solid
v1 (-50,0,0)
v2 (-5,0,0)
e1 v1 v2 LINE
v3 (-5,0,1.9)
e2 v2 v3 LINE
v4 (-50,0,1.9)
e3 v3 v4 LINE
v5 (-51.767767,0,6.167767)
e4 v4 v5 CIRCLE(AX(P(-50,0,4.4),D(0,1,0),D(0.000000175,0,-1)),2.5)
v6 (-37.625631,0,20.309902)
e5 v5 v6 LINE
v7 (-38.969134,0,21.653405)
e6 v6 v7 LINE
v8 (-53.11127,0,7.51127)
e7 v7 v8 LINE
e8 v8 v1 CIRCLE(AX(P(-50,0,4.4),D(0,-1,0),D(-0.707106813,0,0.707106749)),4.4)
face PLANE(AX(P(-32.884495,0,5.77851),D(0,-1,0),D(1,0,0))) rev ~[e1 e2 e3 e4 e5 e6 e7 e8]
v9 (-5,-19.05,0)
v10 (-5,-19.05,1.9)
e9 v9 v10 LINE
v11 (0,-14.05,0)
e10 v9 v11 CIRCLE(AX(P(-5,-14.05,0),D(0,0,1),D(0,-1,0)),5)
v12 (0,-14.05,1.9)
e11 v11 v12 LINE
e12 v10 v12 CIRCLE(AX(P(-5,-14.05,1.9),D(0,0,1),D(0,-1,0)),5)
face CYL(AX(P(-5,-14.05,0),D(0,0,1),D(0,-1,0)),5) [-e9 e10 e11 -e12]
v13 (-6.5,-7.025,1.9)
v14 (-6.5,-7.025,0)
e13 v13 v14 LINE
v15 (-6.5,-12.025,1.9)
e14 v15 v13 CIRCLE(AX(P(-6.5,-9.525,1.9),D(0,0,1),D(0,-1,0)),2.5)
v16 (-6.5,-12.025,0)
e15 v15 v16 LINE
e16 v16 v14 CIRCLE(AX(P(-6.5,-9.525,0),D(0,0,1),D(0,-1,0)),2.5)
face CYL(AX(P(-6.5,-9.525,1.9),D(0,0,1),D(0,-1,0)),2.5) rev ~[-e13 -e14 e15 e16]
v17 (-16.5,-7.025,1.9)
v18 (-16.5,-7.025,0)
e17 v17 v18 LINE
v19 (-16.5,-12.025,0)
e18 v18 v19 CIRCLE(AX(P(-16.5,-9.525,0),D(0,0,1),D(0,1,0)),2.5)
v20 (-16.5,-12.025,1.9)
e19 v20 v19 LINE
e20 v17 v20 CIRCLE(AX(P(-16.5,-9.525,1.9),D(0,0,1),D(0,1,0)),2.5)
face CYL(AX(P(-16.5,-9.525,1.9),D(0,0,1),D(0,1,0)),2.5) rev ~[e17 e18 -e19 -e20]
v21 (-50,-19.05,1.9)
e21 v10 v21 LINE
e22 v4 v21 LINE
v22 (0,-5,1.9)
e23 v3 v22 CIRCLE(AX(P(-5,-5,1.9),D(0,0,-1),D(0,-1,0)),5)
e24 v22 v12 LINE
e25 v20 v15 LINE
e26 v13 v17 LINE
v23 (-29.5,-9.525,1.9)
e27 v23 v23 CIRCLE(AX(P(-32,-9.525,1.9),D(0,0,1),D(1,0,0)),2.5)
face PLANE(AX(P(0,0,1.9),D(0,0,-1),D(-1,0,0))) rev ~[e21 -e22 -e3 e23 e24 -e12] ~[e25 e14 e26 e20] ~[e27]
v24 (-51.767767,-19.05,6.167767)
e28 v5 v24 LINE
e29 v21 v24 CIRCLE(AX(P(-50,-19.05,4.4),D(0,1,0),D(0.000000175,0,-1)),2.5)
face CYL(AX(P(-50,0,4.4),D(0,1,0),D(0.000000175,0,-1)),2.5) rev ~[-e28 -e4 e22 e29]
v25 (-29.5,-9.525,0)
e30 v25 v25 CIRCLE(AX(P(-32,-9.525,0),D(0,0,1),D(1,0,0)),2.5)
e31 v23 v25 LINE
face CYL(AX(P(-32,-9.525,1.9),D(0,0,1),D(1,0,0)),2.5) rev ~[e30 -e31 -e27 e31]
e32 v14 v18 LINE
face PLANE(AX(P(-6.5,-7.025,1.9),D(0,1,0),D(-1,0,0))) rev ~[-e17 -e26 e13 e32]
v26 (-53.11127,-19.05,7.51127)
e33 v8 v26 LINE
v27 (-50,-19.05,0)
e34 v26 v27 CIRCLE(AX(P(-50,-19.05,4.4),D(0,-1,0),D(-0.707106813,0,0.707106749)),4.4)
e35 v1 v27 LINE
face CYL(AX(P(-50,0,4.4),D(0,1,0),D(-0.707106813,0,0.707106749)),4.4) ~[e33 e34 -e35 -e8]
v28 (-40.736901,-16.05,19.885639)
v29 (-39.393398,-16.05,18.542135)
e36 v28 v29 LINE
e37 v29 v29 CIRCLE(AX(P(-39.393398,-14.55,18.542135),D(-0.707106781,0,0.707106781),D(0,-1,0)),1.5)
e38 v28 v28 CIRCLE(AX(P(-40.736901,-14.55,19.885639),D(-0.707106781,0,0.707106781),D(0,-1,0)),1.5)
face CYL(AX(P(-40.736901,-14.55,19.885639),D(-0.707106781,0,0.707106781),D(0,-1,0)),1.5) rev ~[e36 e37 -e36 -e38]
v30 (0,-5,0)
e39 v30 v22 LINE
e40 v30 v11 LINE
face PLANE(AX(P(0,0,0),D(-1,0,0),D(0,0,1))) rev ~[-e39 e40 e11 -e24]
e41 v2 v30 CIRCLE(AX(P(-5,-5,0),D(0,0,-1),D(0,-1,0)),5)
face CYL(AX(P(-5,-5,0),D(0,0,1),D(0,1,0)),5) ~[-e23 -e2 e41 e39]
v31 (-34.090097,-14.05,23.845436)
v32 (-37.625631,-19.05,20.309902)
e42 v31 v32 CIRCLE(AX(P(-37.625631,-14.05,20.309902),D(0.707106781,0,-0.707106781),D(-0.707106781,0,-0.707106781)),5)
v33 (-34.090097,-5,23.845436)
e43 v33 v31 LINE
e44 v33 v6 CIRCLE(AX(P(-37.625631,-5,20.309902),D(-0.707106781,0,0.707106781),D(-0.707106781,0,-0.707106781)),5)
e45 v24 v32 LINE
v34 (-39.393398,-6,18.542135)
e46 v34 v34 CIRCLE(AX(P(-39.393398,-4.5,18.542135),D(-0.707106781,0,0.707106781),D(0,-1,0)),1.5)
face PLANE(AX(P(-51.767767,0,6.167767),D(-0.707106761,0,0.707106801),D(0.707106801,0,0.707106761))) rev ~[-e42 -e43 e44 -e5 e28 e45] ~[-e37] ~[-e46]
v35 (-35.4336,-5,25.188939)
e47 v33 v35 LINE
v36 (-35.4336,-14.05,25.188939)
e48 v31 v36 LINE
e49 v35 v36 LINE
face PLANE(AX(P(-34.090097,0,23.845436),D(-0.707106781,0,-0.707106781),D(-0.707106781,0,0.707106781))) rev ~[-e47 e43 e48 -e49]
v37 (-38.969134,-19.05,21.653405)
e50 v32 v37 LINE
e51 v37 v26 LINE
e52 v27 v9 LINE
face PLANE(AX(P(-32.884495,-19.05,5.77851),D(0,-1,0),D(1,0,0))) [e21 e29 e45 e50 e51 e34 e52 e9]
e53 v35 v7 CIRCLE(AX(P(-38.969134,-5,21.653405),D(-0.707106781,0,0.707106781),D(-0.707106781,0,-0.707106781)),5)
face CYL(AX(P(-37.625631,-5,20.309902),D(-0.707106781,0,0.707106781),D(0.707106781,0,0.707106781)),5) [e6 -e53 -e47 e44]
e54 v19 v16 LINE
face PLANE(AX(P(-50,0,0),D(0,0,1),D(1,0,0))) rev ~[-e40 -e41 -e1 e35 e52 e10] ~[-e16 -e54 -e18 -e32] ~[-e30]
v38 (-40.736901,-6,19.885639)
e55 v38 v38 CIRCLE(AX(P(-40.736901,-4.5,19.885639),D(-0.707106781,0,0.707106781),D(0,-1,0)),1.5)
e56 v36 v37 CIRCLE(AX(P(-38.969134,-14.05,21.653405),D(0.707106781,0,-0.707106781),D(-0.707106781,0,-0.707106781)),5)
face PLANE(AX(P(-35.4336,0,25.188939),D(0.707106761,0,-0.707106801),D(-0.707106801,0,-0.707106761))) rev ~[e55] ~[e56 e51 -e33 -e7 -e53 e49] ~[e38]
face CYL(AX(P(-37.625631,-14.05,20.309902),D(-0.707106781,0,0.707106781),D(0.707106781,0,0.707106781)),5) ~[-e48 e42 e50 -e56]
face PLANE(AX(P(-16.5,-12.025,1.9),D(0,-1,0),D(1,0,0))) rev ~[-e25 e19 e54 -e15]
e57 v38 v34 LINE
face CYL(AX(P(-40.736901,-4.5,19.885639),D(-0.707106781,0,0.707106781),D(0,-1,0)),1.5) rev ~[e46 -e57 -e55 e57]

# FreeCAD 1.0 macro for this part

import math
import FreeCAD as App
import Part
import Sketcher
from FreeCAD import Vector
Q = App.Units.Quantity


def edges_at(feature, points):
    """Names of the edges that pass closest to the given points."""
    edges = feature.Shape.Edges
    near = lambda p: min(range(len(edges)), key=lambda i: edges[i].distToShape(Part.Vertex(*p))[0])
    return sorted({f"Edge{near(p) + 1}" for p in points})

doc = App.newDocument("Part")
body = doc.addObject("PartDesign::Body", "Body")

# Sketch on XZ plane
sketch1 = body.newObject("Sketcher::SketchObject", "Sketch")
sketch1.AttachmentSupport = (doc.getObject("XZ_Plane"), [""])
sketch1.MapMode = "FlatFace"
sketch1.addGeometry(Part.LineSegment(Vector(-35.4336, 25.188939, 0), Vector(-53.11127, 7.51127, 0)), False)
sketch1.addGeometry(Part.ArcOfCircle(Part.Circle(Vector(-50, 4.4, 0), Vector(0, 0, 1), 4.4), math.radians(135.000003), math.radians(269.999999)), False)
sketch1.addGeometry(Part.LineSegment(Vector(-50, 0, 0), Vector(0, 0, 0)), False)
sketch1.addGeometry(Part.LineSegment(Vector(0, 0, 0), Vector(0, 1.9, 0)), False)
sketch1.addGeometry(Part.LineSegment(Vector(0, 1.9, 0), Vector(-50, 1.9, 0)), False)
sketch1.addGeometry(Part.ArcOfCircle(Part.Circle(Vector(-50, 4.4, 0), Vector(0, 0, 1), 2.5), math.radians(134.999991), math.radians(270.00001)), False)
sketch1.addGeometry(Part.LineSegment(Vector(-51.767767, 6.167767, 0), Vector(-34.090097, 23.845436, 0)), False)
sketch1.addGeometry(Part.LineSegment(Vector(-34.090097, 23.845436, 0), Vector(-35.4336, 25.188939, 0)), False)
sketch1.addConstraint(Sketcher.Constraint("Tangent", 0, 2, 1, 1))
sketch1.addConstraint(Sketcher.Constraint("Tangent", 1, 2, 2, 1))
sketch1.addConstraint(Sketcher.Constraint("Coincident", 2, 2, 3, 1))
sketch1.addConstraint(Sketcher.Constraint("Coincident", 3, 2, 4, 1))
sketch1.addConstraint(Sketcher.Constraint("Tangent", 4, 2, 5, 2))
sketch1.addConstraint(Sketcher.Constraint("Tangent", 5, 1, 6, 1))
sketch1.addConstraint(Sketcher.Constraint("Coincident", 6, 2, 7, 1))
sketch1.addConstraint(Sketcher.Constraint("Coincident", 7, 2, 0, 1))
sketch1.addConstraint(Sketcher.Constraint("Horizontal", 2))
sketch1.addConstraint(Sketcher.Constraint("Vertical", 3))
sketch1.addConstraint(Sketcher.Constraint("Horizontal", 4))
sketch1.addConstraint(Sketcher.Constraint("Coincident", 2, 2, -1, 1))
sketch1.addConstraint(Sketcher.Constraint("Coincident", 5, 3, 1, 3))
sketch1.addConstraint(Sketcher.Constraint("Parallel", 0, 6))
sketch1.addConstraint(Sketcher.Constraint("Perpendicular", 6, 7))
sketch1.addConstraint(Sketcher.Constraint("Radius", 1, Q("4.4 mm")))
sketch1.addConstraint(Sketcher.Constraint("Radius", 5, Q("2.5 mm")))
sketch1.addConstraint(Sketcher.Constraint("DistanceX", 2, 1, 2, 2, Q("50 mm")))
sketch1.addConstraint(Sketcher.Constraint("Angle", 0, Q("-135.000002 deg")))
sketch1.addConstraint(Sketcher.Constraint("Distance", 0, Q("25 mm")))
pad1 = body.newObject("PartDesign::Pad", "Pad")
pad1.Profile = sketch1
pad1.Length = 19.05

# Sketch on XY plane
sketch2 = body.newObject("Sketcher::SketchObject", "Sketch001")
sketch2.AttachmentSupport = (doc.getObject("XY_Plane"), [""])
sketch2.MapMode = "FlatFace"
sketch2.AttachmentOffset = App.Placement(Vector(0, 0, 1.9), App.Rotation())
sketch2.addGeometry(Part.Circle(Vector(-32, -9.525, 0), Vector(0, 0, 1), 2.5), False)
sketch2.addGeometry(Part.LineSegment(Vector(-16.5, -12.025, 0), Vector(-6.5, -12.025, 0)), False)
sketch2.addGeometry(Part.ArcOfCircle(Part.Circle(Vector(-6.5, -9.525, 0), Vector(0, 0, 1), 2.5), math.radians(-90), math.radians(90)), False)
sketch2.addGeometry(Part.LineSegment(Vector(-6.5, -7.025, 0), Vector(-16.5, -7.025, 0)), False)
sketch2.addGeometry(Part.ArcOfCircle(Part.Circle(Vector(-16.5, -9.525, 0), Vector(0, 0, 1), 2.5), math.radians(90), math.radians(270)), False)
sketch2.addConstraint(Sketcher.Constraint("Tangent", 1, 2, 2, 1))
sketch2.addConstraint(Sketcher.Constraint("Tangent", 2, 2, 3, 1))
sketch2.addConstraint(Sketcher.Constraint("Tangent", 3, 2, 4, 1))
sketch2.addConstraint(Sketcher.Constraint("Tangent", 4, 2, 1, 1))
sketch2.addConstraint(Sketcher.Constraint("Horizontal", 1))
sketch2.addConstraint(Sketcher.Constraint("Horizontal", 3))
sketch2.addConstraint(Sketcher.Constraint("Equal", 0, 2))
sketch2.addConstraint(Sketcher.Constraint("Horizontal", 0, 3, 2, 3))
sketch2.addConstraint(Sketcher.Constraint("Diameter", 0, Q("5 mm")))
sketch2.addConstraint(Sketcher.Constraint("DistanceX", 1, 1, 1, 2, Q("10 mm")))
sketch2.addConstraint(Sketcher.Constraint("DistanceX", 0, 3, -1, 1, Q("32 mm")))
sketch2.addConstraint(Sketcher.Constraint("DistanceX", 2, 3, -1, 1, Q("6.5 mm")))
sketch2.addConstraint(Sketcher.Constraint("DistanceY", 0, 3, -1, 1, Q("9.525 mm")))
pocket1 = body.newObject("PartDesign::Pocket", "Pocket")
pocket1.Profile = sketch2
pocket1.Length = 25

# Sketch on an angled plane
sketch3 = body.newObject("Sketcher::SketchObject", "Sketch002")
sketch3.Placement = App.Placement(Vector(-30.31127, 0, 30.31127), App.Rotation(Vector(0, -1, 0), Vector(0.707106781, 0, 0.707106781), Vector(-0.707106781, 0, 0.707106781), "ZXY"))
sketch3.addGeometry(Part.Circle(Vector(14.55, -14.744069, 0), Vector(0, 0, 1), 1.5), False)
sketch3.addGeometry(Part.Circle(Vector(4.5, -14.744069, 0), Vector(0, 0, 1), 1.5), False)
sketch3.addConstraint(Sketcher.Constraint("Equal", 0, 1))
sketch3.addConstraint(Sketcher.Constraint("Horizontal", 0, 3, 1, 3))
sketch3.addConstraint(Sketcher.Constraint("Diameter", 0, Q("3 mm")))
sketch3.addConstraint(Sketcher.Constraint("DistanceX", -1, 1, 1, 3, Q("4.5 mm")))
sketch3.addConstraint(Sketcher.Constraint("DistanceX", -1, 1, 0, 3, Q("14.55 mm")))
sketch3.addConstraint(Sketcher.Constraint("DistanceY", 0, 3, -1, 1, Q("14.744069 mm")))
pocket2 = body.newObject("PartDesign::Pocket", "Pocket001")
pocket2.Profile = sketch3
pocket2.Length = 7
doc.recompute()

fillet = body.newObject("PartDesign::Fillet", "Fillet")
fillet.Base = (pocket2, edges_at(pocket2, [
    (0, -19.05, 0.95),
    (0, 0, 0.95),
    (-34.762, -19.05, 24.517),
    (-34.762, 0, 24.517),
]))
fillet.Radius = 5

doc.recompute()
